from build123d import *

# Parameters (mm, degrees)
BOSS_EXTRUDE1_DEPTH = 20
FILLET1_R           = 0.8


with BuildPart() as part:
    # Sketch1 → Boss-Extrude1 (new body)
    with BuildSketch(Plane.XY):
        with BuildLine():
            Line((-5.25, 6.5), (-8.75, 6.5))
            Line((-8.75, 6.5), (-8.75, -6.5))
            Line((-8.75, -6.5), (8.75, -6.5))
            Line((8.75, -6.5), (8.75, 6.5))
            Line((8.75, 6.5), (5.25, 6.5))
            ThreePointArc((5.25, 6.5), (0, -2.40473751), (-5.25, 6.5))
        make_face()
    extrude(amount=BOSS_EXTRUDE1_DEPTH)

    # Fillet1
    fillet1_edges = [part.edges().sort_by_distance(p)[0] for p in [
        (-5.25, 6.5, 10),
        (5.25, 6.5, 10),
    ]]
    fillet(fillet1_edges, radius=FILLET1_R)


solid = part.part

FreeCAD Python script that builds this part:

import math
import FreeCAD as App
import Part
import Sketcher

V = App.Vector
Q = App.Units.Quantity


def edges_at(feature, points):
    """Names of the edges that pass closest to the given points."""
    edges = feature.Shape.Edges
    near = lambda p: min(range(len(edges)), key=lambda i: edges[i].distToShape(Part.Vertex(*p))[0])
    return sorted({f"Edge{near(p) + 1}" for p in points})

doc = App.newDocument("Part")
params = doc.addObject("Spreadsheet::Sheet", "Params")
for row, (alias, value) in enumerate([
    ("sketch1_radius", "6 mm"),
    ("sketch1_height", "13 mm"),
    ("sketch1_width", "3.5 mm"),
    ("sketch1_width2", "17.5 mm"),
    ("pad1_length", "20 mm"),
    ("fillet_radius", "0.8 mm"),
], start=1):
    params.set(f"A{row}", alias)
    params.set(f"B{row}", "=" + value)
    params.setAlias(f"B{row}", alias)

body = doc.addObject("PartDesign::Body", "Body")

# Sketch on XY plane
sketch1 = body.newObject("Sketcher::SketchObject", "Sketch")
sketch1.AttachmentSupport = (doc.getObject("XY_Plane"), [""])
sketch1.MapMode = "FlatFace"
sketch1.addGeometry([
    Part.LineSegment(V(-5.2, 6.5, 0), V(-8.8, 6.5, 0)),  # 0
    Part.LineSegment(V(-8.8, 6.5, 0), V(-8.8, -6.5, 0)),  # 1
    Part.LineSegment(V(-8.8, -6.5, 0), V(8.8, -6.5, 0)),  # 2
    Part.LineSegment(V(8.8, -6.5, 0), V(8.8, 6.5, 0)),  # 3
    Part.LineSegment(V(8.8, 6.5, 0), V(5.2, 6.5, 0)),  # 4
    Part.ArcOfCircle(Part.Circle(V(0, 3.6, 0), V(0, 0, 1), 6), math.radians(151), math.radians(389)),  # 5
], False)
sketch1.addConstraint([
    Sketcher.Constraint("Coincident", 0, 2, 1, 1),
    Sketcher.Constraint("Coincident", 1, 2, 2, 1),
    Sketcher.Constraint("Coincident", 2, 2, 3, 1),
    Sketcher.Constraint("Coincident", 3, 2, 4, 1),
    Sketcher.Constraint("Coincident", 4, 2, 5, 2),
    Sketcher.Constraint("Coincident", 5, 1, 0, 1),
    Sketcher.Constraint("Horizontal", 0),
    Sketcher.Constraint("Vertical", 1),
    Sketcher.Constraint("Horizontal", 2),
    Sketcher.Constraint("Vertical", 3),
    Sketcher.Constraint("Horizontal", 4),
    Sketcher.Constraint("Symmetric", 0, 2, 2, 2, -1, 1),
    Sketcher.Constraint("Symmetric", 4, 2, 5, 1, -2),
    Sketcher.Constraint("Radius", 5, Q("6 mm")),
    Sketcher.Constraint("DistanceY", 1, 2, 1, 1, Q("13 mm")),
    Sketcher.Constraint("DistanceX", 0, 2, 0, 1, Q("3.5 mm")),
    Sketcher.Constraint("DistanceX", 2, 1, 2, 2, Q("17.5 mm")),
])
sketch1.setExpression("Constraints[13]", "Params.sketch1_radius")
sketch1.setExpression("Constraints[14]", "Params.sketch1_height")
sketch1.setExpression("Constraints[15]", "Params.sketch1_width")
sketch1.setExpression("Constraints[16]", "Params.sketch1_width2")
pad1 = body.newObject("PartDesign::Pad", "Pad")
pad1.Profile = sketch1
pad1.setExpression("Length", "Params.pad1_length")
doc.recompute()

fillet = body.newObject("PartDesign::Fillet", "Fillet")
fillet.Base = (pad1, edges_at(pad1, [(-5.25, 6.5, 10), (5.25, 6.5, 10)]))
fillet.setExpression("Radius", "Params.fillet_radius")

doc.recompute()
